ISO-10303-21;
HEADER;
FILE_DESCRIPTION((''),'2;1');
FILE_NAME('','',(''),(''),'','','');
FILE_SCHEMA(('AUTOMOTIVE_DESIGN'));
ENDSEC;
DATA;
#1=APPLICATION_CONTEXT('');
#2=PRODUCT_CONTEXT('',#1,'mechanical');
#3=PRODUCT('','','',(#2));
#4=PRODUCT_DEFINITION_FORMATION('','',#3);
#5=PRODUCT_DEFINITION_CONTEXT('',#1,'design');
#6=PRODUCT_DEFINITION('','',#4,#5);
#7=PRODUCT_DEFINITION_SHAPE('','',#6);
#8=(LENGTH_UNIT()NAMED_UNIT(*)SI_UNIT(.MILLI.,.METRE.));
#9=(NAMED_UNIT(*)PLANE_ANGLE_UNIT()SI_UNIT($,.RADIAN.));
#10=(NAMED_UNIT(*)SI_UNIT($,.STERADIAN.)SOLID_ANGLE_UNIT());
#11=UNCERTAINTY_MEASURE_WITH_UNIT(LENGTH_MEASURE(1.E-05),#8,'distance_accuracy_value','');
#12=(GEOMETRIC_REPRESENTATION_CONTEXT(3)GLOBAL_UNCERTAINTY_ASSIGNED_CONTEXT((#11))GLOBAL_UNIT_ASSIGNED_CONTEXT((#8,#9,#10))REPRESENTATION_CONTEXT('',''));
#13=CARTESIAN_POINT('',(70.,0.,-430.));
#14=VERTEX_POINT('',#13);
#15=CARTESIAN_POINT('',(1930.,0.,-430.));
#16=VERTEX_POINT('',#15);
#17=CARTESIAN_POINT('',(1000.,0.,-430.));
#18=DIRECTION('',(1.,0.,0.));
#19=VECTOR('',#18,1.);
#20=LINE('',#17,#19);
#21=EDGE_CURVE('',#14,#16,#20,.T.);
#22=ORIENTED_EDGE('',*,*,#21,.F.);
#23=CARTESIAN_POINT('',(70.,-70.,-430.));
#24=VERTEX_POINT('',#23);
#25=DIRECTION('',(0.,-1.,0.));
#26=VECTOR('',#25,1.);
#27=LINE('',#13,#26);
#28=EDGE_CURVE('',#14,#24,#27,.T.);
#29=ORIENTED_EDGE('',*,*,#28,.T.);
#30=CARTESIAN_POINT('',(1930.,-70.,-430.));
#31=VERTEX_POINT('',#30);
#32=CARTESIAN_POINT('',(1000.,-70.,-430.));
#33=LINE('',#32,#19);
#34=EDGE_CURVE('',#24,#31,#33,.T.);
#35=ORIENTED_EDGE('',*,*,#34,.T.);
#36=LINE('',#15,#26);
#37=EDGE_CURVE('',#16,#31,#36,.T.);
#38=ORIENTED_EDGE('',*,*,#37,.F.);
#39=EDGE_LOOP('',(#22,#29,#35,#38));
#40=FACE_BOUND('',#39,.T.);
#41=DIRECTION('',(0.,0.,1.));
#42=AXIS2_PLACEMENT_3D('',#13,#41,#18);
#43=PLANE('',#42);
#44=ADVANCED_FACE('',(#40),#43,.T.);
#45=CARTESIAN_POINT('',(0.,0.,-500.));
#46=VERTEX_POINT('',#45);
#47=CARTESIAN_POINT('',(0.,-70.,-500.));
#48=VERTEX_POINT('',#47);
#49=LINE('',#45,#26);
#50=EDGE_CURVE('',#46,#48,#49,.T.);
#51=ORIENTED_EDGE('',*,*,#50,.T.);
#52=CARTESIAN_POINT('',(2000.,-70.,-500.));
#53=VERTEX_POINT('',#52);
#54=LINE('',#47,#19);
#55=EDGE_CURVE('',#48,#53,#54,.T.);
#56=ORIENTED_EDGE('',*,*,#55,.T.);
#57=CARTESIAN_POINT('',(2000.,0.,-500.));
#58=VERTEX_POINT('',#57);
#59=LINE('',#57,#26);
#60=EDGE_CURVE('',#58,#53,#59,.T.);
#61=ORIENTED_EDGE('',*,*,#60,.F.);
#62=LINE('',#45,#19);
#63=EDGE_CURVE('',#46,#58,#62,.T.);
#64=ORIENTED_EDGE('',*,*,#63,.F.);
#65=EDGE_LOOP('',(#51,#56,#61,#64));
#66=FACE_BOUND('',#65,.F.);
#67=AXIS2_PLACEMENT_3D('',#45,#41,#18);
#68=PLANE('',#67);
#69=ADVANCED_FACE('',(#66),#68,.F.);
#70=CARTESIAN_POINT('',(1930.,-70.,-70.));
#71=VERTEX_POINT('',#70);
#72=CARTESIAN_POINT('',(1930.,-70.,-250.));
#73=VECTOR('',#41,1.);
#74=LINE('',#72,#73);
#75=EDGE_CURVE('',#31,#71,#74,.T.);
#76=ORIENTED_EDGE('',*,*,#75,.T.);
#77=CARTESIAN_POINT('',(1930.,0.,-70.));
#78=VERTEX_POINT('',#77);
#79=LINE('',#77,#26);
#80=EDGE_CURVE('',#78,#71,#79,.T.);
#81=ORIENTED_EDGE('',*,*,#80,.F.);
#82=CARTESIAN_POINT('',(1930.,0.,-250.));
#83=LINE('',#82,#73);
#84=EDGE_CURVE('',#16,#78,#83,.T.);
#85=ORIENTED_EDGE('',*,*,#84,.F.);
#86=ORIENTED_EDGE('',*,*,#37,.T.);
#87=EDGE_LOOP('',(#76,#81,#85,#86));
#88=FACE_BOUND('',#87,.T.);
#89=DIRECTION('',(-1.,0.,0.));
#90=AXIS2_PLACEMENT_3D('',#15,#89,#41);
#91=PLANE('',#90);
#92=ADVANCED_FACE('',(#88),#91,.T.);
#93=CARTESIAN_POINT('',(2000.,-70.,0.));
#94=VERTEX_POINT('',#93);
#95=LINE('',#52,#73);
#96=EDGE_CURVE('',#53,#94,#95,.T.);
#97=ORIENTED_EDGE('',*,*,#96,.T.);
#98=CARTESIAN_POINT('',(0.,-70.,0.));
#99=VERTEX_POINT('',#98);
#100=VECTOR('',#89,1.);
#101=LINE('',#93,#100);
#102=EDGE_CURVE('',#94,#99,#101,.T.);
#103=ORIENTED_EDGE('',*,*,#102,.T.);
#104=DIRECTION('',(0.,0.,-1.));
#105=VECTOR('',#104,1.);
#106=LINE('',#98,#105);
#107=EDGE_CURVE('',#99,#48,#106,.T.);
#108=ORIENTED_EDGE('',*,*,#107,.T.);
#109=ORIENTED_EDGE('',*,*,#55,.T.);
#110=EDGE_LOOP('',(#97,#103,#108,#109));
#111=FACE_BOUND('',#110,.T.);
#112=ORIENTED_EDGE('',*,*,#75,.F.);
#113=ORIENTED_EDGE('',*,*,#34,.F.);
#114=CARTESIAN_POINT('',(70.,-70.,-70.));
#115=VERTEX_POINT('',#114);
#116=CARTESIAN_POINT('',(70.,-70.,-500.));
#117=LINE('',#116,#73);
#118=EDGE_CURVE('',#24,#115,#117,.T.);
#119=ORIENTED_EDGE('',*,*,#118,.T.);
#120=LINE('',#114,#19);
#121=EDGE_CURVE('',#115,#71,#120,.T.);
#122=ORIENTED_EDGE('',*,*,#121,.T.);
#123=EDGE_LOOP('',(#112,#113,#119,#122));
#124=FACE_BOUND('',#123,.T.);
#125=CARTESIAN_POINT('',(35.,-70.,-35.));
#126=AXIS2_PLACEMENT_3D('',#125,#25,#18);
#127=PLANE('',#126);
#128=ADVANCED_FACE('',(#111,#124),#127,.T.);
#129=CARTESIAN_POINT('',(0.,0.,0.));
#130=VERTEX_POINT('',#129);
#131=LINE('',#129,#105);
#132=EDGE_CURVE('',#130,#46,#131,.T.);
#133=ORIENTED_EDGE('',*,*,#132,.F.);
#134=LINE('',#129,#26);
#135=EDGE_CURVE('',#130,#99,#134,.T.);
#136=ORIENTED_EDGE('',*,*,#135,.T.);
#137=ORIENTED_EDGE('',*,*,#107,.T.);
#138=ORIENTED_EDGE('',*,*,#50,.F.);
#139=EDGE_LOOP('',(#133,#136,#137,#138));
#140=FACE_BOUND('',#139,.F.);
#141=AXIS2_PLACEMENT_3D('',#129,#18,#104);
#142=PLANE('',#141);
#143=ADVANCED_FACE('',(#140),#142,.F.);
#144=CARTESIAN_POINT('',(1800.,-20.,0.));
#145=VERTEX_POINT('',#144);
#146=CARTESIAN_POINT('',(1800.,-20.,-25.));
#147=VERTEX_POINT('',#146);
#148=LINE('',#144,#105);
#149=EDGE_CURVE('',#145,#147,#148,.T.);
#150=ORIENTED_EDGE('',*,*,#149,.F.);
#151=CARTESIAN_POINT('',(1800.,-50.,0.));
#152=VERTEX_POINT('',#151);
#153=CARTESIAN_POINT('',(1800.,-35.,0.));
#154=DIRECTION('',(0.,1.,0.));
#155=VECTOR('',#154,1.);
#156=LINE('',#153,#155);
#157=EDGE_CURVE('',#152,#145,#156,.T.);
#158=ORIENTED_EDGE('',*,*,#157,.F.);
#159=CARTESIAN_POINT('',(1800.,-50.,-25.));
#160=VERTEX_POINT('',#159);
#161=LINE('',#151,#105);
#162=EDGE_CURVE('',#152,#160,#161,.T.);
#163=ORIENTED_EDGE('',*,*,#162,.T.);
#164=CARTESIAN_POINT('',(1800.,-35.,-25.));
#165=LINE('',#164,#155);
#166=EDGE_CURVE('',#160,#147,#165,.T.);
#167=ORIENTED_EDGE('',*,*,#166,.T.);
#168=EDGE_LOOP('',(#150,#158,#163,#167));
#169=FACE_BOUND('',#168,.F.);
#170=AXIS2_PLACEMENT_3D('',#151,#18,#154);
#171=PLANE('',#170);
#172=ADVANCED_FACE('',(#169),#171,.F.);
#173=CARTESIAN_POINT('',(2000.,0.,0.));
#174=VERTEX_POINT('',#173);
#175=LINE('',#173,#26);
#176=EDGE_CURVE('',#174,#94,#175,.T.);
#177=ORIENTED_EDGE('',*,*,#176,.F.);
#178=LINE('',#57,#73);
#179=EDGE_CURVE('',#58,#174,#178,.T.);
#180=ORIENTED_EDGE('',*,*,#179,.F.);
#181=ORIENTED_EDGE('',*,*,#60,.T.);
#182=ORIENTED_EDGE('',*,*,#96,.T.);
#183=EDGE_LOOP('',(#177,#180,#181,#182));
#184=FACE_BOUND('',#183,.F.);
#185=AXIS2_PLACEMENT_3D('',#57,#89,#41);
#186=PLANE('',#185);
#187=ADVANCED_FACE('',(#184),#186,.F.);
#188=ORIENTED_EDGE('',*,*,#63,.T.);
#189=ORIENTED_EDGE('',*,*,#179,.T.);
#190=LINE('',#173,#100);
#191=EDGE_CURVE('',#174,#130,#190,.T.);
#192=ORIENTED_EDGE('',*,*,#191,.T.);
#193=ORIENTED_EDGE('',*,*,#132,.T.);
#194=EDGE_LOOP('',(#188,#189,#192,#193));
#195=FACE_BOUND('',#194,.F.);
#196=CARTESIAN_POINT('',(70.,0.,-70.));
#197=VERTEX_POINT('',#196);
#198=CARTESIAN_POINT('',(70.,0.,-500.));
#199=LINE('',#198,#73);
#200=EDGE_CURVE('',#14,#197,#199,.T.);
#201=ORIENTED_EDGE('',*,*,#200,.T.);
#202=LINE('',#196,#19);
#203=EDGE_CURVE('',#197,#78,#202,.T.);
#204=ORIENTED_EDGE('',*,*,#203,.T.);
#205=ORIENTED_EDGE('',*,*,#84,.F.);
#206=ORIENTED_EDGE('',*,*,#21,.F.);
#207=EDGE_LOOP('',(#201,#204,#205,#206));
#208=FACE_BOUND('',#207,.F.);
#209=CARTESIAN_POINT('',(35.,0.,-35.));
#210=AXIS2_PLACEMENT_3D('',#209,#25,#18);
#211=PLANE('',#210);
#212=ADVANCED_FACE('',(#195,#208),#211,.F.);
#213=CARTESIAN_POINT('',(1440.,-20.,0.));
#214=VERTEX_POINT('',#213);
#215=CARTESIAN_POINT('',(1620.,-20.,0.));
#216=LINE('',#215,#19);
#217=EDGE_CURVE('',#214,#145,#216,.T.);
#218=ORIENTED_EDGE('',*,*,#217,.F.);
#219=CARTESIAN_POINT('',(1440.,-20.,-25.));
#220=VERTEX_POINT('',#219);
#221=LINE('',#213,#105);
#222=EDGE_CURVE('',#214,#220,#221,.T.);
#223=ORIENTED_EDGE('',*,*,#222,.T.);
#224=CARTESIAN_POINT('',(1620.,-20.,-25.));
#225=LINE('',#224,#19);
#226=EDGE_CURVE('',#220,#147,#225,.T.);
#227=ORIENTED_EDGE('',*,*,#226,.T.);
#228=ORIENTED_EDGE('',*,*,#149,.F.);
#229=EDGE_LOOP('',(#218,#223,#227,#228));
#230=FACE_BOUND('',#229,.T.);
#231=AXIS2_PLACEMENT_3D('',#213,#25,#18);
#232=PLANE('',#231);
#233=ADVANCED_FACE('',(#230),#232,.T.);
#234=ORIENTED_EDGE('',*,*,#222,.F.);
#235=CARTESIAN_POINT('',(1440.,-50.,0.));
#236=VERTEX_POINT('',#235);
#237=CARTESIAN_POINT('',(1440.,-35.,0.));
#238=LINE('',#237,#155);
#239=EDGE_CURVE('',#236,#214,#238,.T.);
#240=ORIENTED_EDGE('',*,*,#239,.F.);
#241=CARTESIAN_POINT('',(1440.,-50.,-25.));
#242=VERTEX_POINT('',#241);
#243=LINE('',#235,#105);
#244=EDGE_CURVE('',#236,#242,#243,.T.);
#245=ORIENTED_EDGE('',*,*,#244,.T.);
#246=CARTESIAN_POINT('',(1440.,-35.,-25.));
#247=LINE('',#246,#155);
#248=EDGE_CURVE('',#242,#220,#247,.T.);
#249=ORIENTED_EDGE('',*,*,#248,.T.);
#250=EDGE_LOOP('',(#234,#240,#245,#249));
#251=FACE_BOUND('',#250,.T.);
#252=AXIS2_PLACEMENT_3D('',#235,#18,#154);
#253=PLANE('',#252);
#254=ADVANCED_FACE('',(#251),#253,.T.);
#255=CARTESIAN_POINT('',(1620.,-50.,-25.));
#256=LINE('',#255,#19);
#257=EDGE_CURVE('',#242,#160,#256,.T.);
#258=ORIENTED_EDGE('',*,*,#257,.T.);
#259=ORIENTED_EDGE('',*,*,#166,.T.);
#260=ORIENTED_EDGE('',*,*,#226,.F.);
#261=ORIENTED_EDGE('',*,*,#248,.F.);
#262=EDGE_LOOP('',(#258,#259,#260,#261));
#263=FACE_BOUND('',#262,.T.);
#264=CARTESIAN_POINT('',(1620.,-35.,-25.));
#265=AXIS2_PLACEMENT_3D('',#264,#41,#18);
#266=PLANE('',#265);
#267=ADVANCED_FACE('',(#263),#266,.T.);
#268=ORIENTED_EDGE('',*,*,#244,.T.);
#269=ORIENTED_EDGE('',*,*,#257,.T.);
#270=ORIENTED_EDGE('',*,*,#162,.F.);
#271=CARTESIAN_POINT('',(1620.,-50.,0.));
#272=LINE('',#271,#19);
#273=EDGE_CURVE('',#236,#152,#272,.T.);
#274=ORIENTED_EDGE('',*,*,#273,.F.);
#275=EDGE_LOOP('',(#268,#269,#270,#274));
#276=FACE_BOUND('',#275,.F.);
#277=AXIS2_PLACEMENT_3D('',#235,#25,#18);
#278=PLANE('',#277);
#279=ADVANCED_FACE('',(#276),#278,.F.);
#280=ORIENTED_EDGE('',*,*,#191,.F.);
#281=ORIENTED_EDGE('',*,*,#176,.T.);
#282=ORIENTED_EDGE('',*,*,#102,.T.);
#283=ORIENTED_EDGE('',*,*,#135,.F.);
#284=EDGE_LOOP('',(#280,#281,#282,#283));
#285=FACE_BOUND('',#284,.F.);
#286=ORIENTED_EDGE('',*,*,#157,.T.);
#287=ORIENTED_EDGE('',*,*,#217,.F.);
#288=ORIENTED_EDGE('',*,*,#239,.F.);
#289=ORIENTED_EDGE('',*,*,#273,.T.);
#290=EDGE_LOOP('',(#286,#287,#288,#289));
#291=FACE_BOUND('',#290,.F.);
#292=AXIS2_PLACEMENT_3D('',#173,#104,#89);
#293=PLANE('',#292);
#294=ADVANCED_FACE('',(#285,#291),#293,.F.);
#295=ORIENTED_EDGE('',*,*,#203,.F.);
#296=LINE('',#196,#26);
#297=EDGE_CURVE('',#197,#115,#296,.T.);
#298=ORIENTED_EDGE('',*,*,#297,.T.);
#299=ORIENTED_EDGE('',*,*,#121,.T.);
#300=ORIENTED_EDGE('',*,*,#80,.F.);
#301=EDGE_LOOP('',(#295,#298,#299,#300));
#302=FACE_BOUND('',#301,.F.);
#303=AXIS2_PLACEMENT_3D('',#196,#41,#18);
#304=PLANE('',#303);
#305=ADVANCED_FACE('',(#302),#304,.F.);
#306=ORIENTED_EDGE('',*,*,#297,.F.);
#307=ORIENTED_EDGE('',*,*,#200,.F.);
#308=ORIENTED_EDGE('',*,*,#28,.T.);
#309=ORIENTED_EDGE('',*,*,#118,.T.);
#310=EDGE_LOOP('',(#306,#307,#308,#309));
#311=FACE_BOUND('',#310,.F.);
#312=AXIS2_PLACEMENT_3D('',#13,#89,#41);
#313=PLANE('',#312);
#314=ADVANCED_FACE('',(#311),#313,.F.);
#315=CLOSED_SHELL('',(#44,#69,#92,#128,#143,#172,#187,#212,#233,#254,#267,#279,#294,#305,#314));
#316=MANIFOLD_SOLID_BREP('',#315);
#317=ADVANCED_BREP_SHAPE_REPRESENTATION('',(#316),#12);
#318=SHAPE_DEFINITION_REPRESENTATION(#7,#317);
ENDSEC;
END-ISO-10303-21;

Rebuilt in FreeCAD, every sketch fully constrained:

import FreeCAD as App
import Part
import Sketcher
Q = App.Units.Quantity


def add_polygon(sketch, points):
    """Adds a closed chain of lines whose ends are joined by coincident constraints."""
    first, n = sketch.GeometryCount, len(points)
    for a, b in zip(points, points[1:] + points[:1]):
        sketch.addGeometry(Part.LineSegment(App.Vector(*a, 0), App.Vector(*b, 0)), False)
    for i in range(n):
        sketch.addConstraint(Sketcher.Constraint("Coincident", first + i, 2, first + (i + 1) % n, 1))

doc = App.newDocument("Part")
body = doc.addObject("PartDesign::Body", "Body")

# Sketch on XZ plane
sketch1 = body.newObject("Sketcher::SketchObject", "Sketch")
sketch1.AttachmentSupport = (doc.getObject("XZ_Plane"), [""])
sketch1.MapMode = "FlatFace"
add_polygon(sketch1, [(0, -500), (2000, -500), (2000, 0), (0, 0)])  # lines 0-3
add_polygon(sketch1, [(1930, -430), (70, -430), (70, -70), (1930, -70)])  # lines 4-7
sketch1.addConstraint(Sketcher.Constraint("Horizontal", 0))
sketch1.addConstraint(Sketcher.Constraint("Vertical", 1))
sketch1.addConstraint(Sketcher.Constraint("Horizontal", 2))
sketch1.addConstraint(Sketcher.Constraint("Vertical", 3))
sketch1.addConstraint(Sketcher.Constraint("Horizontal", 4))
sketch1.addConstraint(Sketcher.Constraint("Vertical", 5))
sketch1.addConstraint(Sketcher.Constraint("Horizontal", 6))
sketch1.addConstraint(Sketcher.Constraint("Vertical", 7))
sketch1.addConstraint(Sketcher.Constraint("Coincident", 2, 2, -1, 1))
sketch1.addConstraint(Sketcher.Constraint("DistanceX", 0, 1, 0, 2, Q("2000 mm")))
sketch1.addConstraint(Sketcher.Constraint("DistanceX", 4, 2, 4, 1, Q("1860 mm")))
sketch1.addConstraint(Sketcher.Constraint("DistanceY", 1, 1, 1, 2, Q("500 mm")))
sketch1.addConstraint(Sketcher.Constraint("DistanceY", 5, 1, 5, 2, Q("360 mm")))
sketch1.addConstraint(Sketcher.Constraint("DistanceX", -1, 1, 4, 2, Q("70 mm")))
sketch1.addConstraint(Sketcher.Constraint("DistanceY", 4, 2, -1, 1, Q("430 mm")))
pad1 = body.newObject("PartDesign::Pad", "Pad")
pad1.Profile = sketch1
pad1.Length = 70

# Sketch on XY plane
sketch2 = body.newObject("Sketcher::SketchObject", "Sketch001")
sketch2.AttachmentSupport = (doc.getObject("XY_Plane"), [""])
sketch2.MapMode = "FlatFace"
add_polygon(sketch2, [(1440, -20), (1440, -50), (1800, -50), (1800, -20)])  # lines 0-3
sketch2.addConstraint(Sketcher.Constraint("Vertical", 0))
sketch2.addConstraint(Sketcher.Constraint("Horizontal", 1))
sketch2.addConstraint(Sketcher.Constraint("Vertical", 2))
sketch2.addConstraint(Sketcher.Constraint("Horizontal", 3))
sketch2.addConstraint(Sketcher.Constraint("DistanceX", 1, 1, 1, 2, Q("360 mm")))
sketch2.addConstraint(Sketcher.Constraint("DistanceY", 0, 2, 0, 1, Q("30 mm")))
sketch2.addConstraint(Sketcher.Constraint("DistanceX", -1, 1, 0, 2, Q("1440 mm")))
sketch2.addConstraint(Sketcher.Constraint("DistanceY", 0, 2, -1, 1, Q("50 mm")))
pocket1 = body.newObject("PartDesign::Pocket", "Pocket")
pocket1.Profile = sketch2
pocket1.Type = "TwoLengths"
pocket1.Length = 25
pocket1.Length2 = 25
pocket1.Reversed = True

doc.recompute()
